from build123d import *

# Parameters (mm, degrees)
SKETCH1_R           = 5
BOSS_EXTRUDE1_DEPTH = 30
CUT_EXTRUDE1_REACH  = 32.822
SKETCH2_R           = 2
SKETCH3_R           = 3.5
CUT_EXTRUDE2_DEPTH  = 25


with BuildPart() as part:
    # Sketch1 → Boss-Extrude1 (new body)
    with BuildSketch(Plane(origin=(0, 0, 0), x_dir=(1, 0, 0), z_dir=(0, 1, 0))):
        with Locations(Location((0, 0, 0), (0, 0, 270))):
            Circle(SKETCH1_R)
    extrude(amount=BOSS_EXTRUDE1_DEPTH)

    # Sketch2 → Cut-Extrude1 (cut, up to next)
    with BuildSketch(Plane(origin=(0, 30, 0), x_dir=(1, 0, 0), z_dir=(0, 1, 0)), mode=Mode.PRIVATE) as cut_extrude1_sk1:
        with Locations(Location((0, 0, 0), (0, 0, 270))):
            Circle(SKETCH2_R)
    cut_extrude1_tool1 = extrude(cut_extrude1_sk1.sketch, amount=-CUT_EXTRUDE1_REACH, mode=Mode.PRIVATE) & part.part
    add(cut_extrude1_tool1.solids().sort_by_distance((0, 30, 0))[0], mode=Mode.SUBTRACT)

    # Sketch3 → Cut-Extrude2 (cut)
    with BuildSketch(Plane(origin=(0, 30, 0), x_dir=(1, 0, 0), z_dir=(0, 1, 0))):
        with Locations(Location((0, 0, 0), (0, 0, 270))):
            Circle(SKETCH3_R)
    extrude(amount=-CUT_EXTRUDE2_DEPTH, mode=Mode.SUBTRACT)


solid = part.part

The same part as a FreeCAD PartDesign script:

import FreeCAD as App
import Part
import Sketcher
Q = App.Units.Quantity

doc = App.newDocument("Part")
body = doc.addObject("PartDesign::Body", "Body")

# Sketch on XZ plane
sketch1 = body.newObject("Sketcher::SketchObject", "Sketch")
sketch1.AttachmentSupport = (doc.getObject("XZ_Plane"), [""])
sketch1.MapMode = "FlatFace"
sketch1.addGeometry(Part.Circle(App.Vector(0, 0, 0), App.Vector(0, 0, 1), 5), False)
sketch1.addConstraint(Sketcher.Constraint("Coincident", 0, 3, -1, 1))
sketch1.addConstraint(Sketcher.Constraint("Diameter", 0, Q("10 mm")))
pad1 = body.newObject("PartDesign::Pad", "Pad")
pad1.Profile = sketch1
pad1.Length = 30
pad1.Reversed = True

# Sketch on XZ plane
sketch2 = body.newObject("Sketcher::SketchObject", "Sketch001")
sketch2.AttachmentSupport = (doc.getObject("XZ_Plane"), [""])
sketch2.MapMode = "FlatFace"
sketch2.AttachmentOffset = App.Placement(App.Vector(0, 0, -30), App.Rotation())
sketch2.addGeometry(Part.Circle(App.Vector(0, 0, 0), App.Vector(0, 0, 1), 2), False)
sketch2.addConstraint(Sketcher.Constraint("Coincident", 0, 3, -1, 1))
sketch2.addConstraint(Sketcher.Constraint("Diameter", 0, Q("4 mm")))
pocket1 = body.newObject("PartDesign::Pocket", "Pocket")
pocket1.Profile = sketch2
pocket1.Type = "UpToFirst"
pocket1.Reversed = True

# Sketch on XZ plane
sketch3 = body.newObject("Sketcher::SketchObject", "Sketch002")
sketch3.AttachmentSupport = (doc.getObject("XZ_Plane"), [""])
sketch3.MapMode = "FlatFace"
sketch3.AttachmentOffset = App.Placement(App.Vector(0, 0, -30), App.Rotation())
sketch3.addGeometry(Part.Circle(App.Vector(0, 0, 0), App.Vector(0, 0, 1), 3.5), False)
sketch3.addConstraint(Sketcher.Constraint("Coincident", 0, 3, -1, 1))
sketch3.addConstraint(Sketcher.Constraint("Diameter", 0, Q("7 mm")))
pocket2 = body.newObject("PartDesign::Pocket", "Pocket001")
pocket2.Profile = sketch3
pocket2.Length = 25
pocket2.Reversed = True

doc.recompute()
